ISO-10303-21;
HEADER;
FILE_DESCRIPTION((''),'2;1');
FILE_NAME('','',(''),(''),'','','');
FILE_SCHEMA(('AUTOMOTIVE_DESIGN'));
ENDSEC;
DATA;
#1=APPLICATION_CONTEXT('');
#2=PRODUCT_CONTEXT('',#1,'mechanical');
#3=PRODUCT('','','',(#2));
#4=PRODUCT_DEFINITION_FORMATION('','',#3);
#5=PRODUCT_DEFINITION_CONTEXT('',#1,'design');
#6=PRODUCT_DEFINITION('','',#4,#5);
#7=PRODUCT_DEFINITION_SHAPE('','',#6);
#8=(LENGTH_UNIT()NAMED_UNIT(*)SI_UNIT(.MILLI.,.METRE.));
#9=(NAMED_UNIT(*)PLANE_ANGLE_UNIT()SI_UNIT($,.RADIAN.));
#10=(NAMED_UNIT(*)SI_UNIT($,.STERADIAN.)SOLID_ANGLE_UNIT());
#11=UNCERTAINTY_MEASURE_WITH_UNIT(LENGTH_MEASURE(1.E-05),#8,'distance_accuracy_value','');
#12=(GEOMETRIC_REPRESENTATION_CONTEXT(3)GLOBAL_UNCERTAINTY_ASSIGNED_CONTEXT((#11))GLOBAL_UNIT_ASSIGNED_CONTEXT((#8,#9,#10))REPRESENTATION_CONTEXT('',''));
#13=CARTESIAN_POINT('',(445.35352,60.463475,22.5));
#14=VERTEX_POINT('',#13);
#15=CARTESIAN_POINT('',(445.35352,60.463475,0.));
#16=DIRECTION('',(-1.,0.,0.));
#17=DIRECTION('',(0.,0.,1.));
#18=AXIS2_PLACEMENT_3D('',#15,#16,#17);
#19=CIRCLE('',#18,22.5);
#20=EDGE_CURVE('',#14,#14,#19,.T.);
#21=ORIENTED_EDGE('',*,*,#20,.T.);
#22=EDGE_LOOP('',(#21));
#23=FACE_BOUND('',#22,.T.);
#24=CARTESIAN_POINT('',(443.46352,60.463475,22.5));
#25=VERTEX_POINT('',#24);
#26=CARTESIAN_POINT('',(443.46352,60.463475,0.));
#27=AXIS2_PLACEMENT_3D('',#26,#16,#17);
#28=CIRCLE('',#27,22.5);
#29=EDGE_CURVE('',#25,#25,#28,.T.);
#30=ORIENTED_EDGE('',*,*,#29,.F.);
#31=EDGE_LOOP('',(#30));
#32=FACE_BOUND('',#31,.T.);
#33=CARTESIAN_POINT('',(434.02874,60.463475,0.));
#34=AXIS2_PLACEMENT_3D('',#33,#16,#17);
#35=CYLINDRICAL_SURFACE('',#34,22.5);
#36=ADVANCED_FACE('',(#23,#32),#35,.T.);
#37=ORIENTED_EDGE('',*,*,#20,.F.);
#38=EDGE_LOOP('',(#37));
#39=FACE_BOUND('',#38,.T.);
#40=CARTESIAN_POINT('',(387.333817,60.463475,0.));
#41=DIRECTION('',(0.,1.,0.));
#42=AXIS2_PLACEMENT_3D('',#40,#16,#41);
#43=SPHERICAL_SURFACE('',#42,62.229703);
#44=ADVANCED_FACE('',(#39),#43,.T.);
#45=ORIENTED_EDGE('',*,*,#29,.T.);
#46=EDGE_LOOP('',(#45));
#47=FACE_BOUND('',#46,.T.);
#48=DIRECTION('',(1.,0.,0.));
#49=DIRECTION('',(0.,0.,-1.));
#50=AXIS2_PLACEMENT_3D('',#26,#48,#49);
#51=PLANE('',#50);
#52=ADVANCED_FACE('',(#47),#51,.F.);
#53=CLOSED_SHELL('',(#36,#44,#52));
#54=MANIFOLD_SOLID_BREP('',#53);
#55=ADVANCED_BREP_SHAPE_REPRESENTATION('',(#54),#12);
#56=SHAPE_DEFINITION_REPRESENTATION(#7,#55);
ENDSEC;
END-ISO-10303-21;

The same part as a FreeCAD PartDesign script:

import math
import FreeCAD as App
import Part
import Sketcher

V = App.Vector
Q = App.Units.Quantity

doc = App.newDocument("Part")
body = doc.addObject("PartDesign::Body", "Body")

# Sketch on XY plane
sketch1 = doc.addObject("Sketcher::SketchObject", "Sketch")
body.addObject(sketch1)
sketch1.AttachmentSupport = (doc.XY_Plane, [""])
sketch1.MapMode = "FlatFace"
sketch1.addGeometry([
    Part.LineSegment(V(443.5, 83, 0), V(443.5, 60.5, 0)),
    Part.LineSegment(V(443.5, 60.5, 0), V(449.6, 60.5, 0)),
    Part.ArcOfCircle(Part.Circle(V(387.3, 60.5, 0), V(0, 0, 1), 62.2), math.radians(0), math.radians(21)),
    Part.LineSegment(V(445.4, 83, 0), V(443.5, 83, 0)),
], False)
sketch1.addGeometry(Part.LineSegment(V(387.3, 60.5, 0), V(449.6, 60.5, 0)), True)  # axis
sketch1.addConstraint([
    Sketcher.Constraint("Coincident", 0, 2, 1, 1),
    Sketcher.Constraint("Coincident", 1, 2, 2, 1),
    Sketcher.Constraint("Coincident", 2, 2, 3, 1),
    Sketcher.Constraint("Coincident", 3, 2, 0, 1),
    Sketcher.Constraint("Vertical", 0),
    Sketcher.Constraint("Horizontal", 1),
    Sketcher.Constraint("Horizontal", 3),
    Sketcher.Constraint("Horizontal", 4),
    Sketcher.Constraint("Coincident", 4, 1, 2, 3),
    Sketcher.Constraint("Coincident", 4, 2, 1, 2),
    Sketcher.Constraint("DistanceX", 1, 1, 1, 2, Q("6.1 mm")),
    Sketcher.Constraint("DistanceY", 0, 2, 0, 1, Q("22.5 mm")),
    Sketcher.Constraint("DistanceX", 3, 2, 3, 1, Q("1.89 mm")),
    Sketcher.Constraint("DistanceX", -1, 1, 0, 2, Q("443.46352 mm")),
    Sketcher.Constraint("DistanceY", -1, 1, 2, 3, Q("60.463475 mm")),
])
revolution = doc.addObject("PartDesign::Revolution", "Revolution")
body.addObject(revolution)
revolution.Profile = sketch1
revolution.ReferenceAxis = (sketch1, ["Axis0"])
revolution.Angle = 360

doc.recompute()
